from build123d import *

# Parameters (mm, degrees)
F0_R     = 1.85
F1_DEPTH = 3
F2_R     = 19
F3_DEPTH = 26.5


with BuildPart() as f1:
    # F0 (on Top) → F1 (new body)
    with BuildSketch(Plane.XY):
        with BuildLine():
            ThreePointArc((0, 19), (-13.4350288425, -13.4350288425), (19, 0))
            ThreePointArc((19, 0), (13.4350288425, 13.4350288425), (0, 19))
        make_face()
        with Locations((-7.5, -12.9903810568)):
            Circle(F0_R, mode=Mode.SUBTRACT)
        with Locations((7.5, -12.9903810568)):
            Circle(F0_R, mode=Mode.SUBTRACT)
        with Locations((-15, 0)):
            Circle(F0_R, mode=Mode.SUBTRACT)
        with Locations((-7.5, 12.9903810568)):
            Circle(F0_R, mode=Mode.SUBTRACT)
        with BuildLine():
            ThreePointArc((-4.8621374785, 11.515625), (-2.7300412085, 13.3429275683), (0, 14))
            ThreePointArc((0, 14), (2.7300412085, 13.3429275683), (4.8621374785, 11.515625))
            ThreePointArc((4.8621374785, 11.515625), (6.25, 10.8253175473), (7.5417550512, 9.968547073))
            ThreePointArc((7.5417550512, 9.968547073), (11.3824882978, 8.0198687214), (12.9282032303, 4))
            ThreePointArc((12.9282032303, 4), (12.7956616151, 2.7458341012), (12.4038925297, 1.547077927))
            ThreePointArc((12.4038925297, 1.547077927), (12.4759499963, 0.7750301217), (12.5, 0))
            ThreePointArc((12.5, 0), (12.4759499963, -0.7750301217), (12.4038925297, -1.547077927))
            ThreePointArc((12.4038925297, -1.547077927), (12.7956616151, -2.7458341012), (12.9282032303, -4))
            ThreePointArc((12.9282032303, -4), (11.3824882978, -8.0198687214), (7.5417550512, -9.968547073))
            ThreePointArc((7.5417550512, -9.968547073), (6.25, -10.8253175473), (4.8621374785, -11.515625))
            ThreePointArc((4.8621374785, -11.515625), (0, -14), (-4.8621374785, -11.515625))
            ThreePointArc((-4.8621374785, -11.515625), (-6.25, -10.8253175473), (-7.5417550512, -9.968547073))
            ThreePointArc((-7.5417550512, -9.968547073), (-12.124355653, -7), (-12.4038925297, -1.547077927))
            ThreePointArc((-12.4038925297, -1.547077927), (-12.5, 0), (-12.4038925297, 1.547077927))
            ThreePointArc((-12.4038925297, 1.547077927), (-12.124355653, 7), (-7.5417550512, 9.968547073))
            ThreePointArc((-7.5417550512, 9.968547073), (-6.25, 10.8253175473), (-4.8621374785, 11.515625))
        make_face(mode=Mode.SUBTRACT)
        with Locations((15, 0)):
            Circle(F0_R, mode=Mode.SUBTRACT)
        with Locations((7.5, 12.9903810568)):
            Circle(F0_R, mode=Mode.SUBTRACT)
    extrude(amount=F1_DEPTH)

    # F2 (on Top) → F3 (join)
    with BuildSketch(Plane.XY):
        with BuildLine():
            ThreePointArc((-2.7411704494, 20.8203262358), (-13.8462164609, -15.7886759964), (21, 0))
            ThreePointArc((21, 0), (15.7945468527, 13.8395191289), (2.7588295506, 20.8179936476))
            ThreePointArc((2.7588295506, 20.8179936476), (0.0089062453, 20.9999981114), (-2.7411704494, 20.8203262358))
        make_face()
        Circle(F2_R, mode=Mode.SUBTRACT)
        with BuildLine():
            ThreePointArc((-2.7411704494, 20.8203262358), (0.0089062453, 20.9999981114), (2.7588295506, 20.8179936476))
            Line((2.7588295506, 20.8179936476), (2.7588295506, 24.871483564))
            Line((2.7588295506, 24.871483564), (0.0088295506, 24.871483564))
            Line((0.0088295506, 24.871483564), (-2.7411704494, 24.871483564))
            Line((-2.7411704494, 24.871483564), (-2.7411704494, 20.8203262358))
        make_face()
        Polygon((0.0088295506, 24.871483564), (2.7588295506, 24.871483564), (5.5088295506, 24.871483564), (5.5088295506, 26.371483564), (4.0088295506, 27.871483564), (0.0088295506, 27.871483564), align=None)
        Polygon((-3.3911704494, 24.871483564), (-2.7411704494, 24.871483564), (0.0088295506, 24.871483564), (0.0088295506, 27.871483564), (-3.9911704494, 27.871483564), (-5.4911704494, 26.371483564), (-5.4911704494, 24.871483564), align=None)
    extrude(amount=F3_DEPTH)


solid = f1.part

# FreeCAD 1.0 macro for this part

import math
import FreeCAD as App
import Part
import Sketcher
Q = App.Units.Quantity

doc = App.newDocument("Part")
body = doc.addObject("PartDesign::Body", "Body")

# Sketch on XY plane
sketch1 = body.newObject("Sketcher::SketchObject", "Sketch")
sketch1.AttachmentSupport = (doc.getObject("XY_Plane"), [""])
sketch1.MapMode = "FlatFace"
sketch1.addGeometry([
    Part.ArcOfCircle(Part.Circle(App.Vector(0, 0, 0), App.Vector(0, 0, 1), 19), math.radians(90), math.radians(360)),  # 0
    Part.ArcOfCircle(Part.Circle(App.Vector(0, 0, 0), App.Vector(0, 0, 1), 19), math.radians(0), math.radians(90)),  # 1
    Part.Circle(App.Vector(-7.5, -13, 0), App.Vector(0, 0, 1), 1.9),  # 2
    Part.Circle(App.Vector(7.5, -13, 0), App.Vector(0, 0, 1), 1.9),  # 3
    Part.Circle(App.Vector(-15, 0, 0), App.Vector(0, 0, 1), 1.9),  # 4
    Part.Circle(App.Vector(-7.5, 13, 0), App.Vector(0, 0, 1), 1.9),  # 5
    Part.ArcOfCircle(Part.Circle(App.Vector(0, 0, 0), App.Vector(0, 0, 1), 12.5), math.radians(112.89), math.radians(127.11)),  # 6
    Part.ArcOfCircle(Part.Circle(App.Vector(0, 8, 0), App.Vector(0, 0, 1), 6), math.radians(90), math.radians(144)),  # 7
    Part.ArcOfCircle(Part.Circle(App.Vector(0, 8, 0), App.Vector(0, 0, 1), 6), math.radians(36), math.radians(90)),  # 8
    Part.ArcOfCircle(Part.Circle(App.Vector(0, 0, 0), App.Vector(0, 0, 1), 12.5), math.radians(52.89), math.radians(67.11)),  # 9
    Part.ArcOfCircle(Part.Circle(App.Vector(6.9, 4, 0), App.Vector(0, 0, 1), 6), math.radians(0), math.radians(84)),  # 10
    Part.ArcOfCircle(Part.Circle(App.Vector(6.9, 4, 0), App.Vector(0, 0, 1), 6), math.radians(-24), math.radians(0)),  # 11
    Part.ArcOfCircle(Part.Circle(App.Vector(0, 0, 0), App.Vector(0, 0, 1), 12.5), math.radians(0), math.radians(7.11)),  # 12
    Part.ArcOfCircle(Part.Circle(App.Vector(0, 0, 0), App.Vector(0, 0, 1), 12.5), math.radians(-7.11), math.radians(0)),  # 13
    Part.ArcOfCircle(Part.Circle(App.Vector(6.9, -4, 0), App.Vector(0, 0, 1), 6), math.radians(0), math.radians(24)),  # 14
    Part.ArcOfCircle(Part.Circle(App.Vector(6.9, -4, 0), App.Vector(0, 0, 1), 6), math.radians(-84), math.radians(0)),  # 15
    Part.ArcOfCircle(Part.Circle(App.Vector(0, 0, 0), App.Vector(0, 0, 1), 12.5), math.radians(-67.11), math.radians(-52.89)),  # 16
    Part.ArcOfCircle(Part.Circle(App.Vector(0, -8, 0), App.Vector(0, 0, 1), 6), math.radians(-144), math.radians(-36)),  # 17
    Part.ArcOfCircle(Part.Circle(App.Vector(0, 0, 0), App.Vector(0, 0, 1), 12.5), math.radians(-127.11), math.radians(-112.89)),  # 18
    Part.ArcOfCircle(Part.Circle(App.Vector(-6.9, -4, 0), App.Vector(0, 0, 1), 6), math.radians(156), math.radians(264)),  # 19
    Part.ArcOfCircle(Part.Circle(App.Vector(0, 0, 0), App.Vector(0, 0, 1), 12.5), math.radians(172.89), math.radians(187.11)),  # 20
    Part.ArcOfCircle(Part.Circle(App.Vector(-6.9, 4, 0), App.Vector(0, 0, 1), 6), math.radians(96), math.radians(204)),  # 21
    Part.Circle(App.Vector(15, 0, 0), App.Vector(0, 0, 1), 1.9),  # 22
    Part.Circle(App.Vector(7.5, 13, 0), App.Vector(0, 0, 1), 1.9),  # 23
], False)
sketch1.addConstraint([
    Sketcher.Constraint("Tangent", 0, 1, 1, 2),
    Sketcher.Constraint("Coincident", 1, 1, 0, 2),
    Sketcher.Constraint("Coincident", 6, 1, 7, 2),
    Sketcher.Constraint("Tangent", 7, 1, 8, 2),
    Sketcher.Constraint("Coincident", 8, 1, 9, 2),
    Sketcher.Constraint("Coincident", 9, 1, 10, 2),
    Sketcher.Constraint("Tangent", 10, 1, 11, 2),
    Sketcher.Constraint("Coincident", 11, 1, 12, 2),
    Sketcher.Constraint("Tangent", 12, 1, 13, 2),
    Sketcher.Constraint("Coincident", 13, 1, 14, 2),
    Sketcher.Constraint("Tangent", 14, 1, 15, 2),
    Sketcher.Constraint("Coincident", 15, 1, 16, 2),
    Sketcher.Constraint("Coincident", 16, 1, 17, 2),
    Sketcher.Constraint("Coincident", 17, 1, 18, 2),
    Sketcher.Constraint("Coincident", 18, 1, 19, 2),
    Sketcher.Constraint("Coincident", 19, 1, 20, 2),
    Sketcher.Constraint("Coincident", 20, 1, 21, 2),
    Sketcher.Constraint("Coincident", 21, 1, 6, 2),
    Sketcher.Constraint("Coincident", 0, 3, -1, 1),
    Sketcher.Constraint("Coincident", 6, 3, -1, 1),
    Sketcher.Constraint("Coincident", 9, 3, -1, 1),
    Sketcher.Constraint("Coincident", 12, 3, -1, 1),
    Sketcher.Constraint("Coincident", 16, 3, -1, 1),
    Sketcher.Constraint("Coincident", 18, 3, -1, 1),
    Sketcher.Constraint("Coincident", 20, 3, -1, 1),
    Sketcher.Constraint("Equal", 2, 3),
    Sketcher.Constraint("Equal", 3, 4),
    Sketcher.Constraint("Equal", 4, 5),
    Sketcher.Constraint("Equal", 7, 8),
    Sketcher.Constraint("Equal", 6, 9),
    Sketcher.Constraint("Equal", 8, 10),
    Sketcher.Constraint("Equal", 10, 11),
    Sketcher.Constraint("Equal", 9, 12),
    Sketcher.Constraint("Equal", 12, 13),
    Sketcher.Constraint("Equal", 11, 14),
    Sketcher.Constraint("Equal", 14, 15),
    Sketcher.Constraint("Equal", 13, 16),
    Sketcher.Constraint("Equal", 15, 17),
    Sketcher.Constraint("Equal", 16, 18),
    Sketcher.Constraint("Equal", 17, 19),
    Sketcher.Constraint("Equal", 18, 20),
    Sketcher.Constraint("Equal", 19, 21),
    Sketcher.Constraint("Equal", 5, 22),
    Sketcher.Constraint("Equal", 22, 23),
    Sketcher.Constraint("Symmetric", 3, 3, 5, 3, -1, 1),
    Sketcher.Constraint("Symmetric", 7, 3, 17, 3, -1, 1),
    Sketcher.Constraint("Symmetric", 10, 3, 19, 3, -1, 1),
    Sketcher.Constraint("Symmetric", 14, 3, 21, 3, -1, 1),
    Sketcher.Constraint("Symmetric", 4, 3, 22, 3, -1, 1),
    Sketcher.Constraint("Symmetric", 2, 3, 23, 3, -1, 1),
    Sketcher.Constraint("Symmetric", 2, 3, 3, 3, -2),
    Sketcher.Constraint("Symmetric", 14, 3, 19, 3, -2),
    Sketcher.Constraint("PointOnObject", 4, 3, -1),
    Sketcher.Constraint("PointOnObject", 7, 3, -2),
    Sketcher.Constraint("PointOnObject", 0, 1, -2),
    Sketcher.Constraint("PointOnObject", 1, 1, -1),
    Sketcher.Constraint("PointOnObject", 7, 1, -2),
    Sketcher.Constraint("PointOnObject", 12, 1, -1),
    Sketcher.Constraint("Horizontal", 21, 3, 10, 1),
    Sketcher.Constraint("Horizontal", 19, 3, 14, 1),
    Sketcher.Constraint("Radius", 0, Q("19 mm")),
    Sketcher.Constraint("Radius", 7, Q("6 mm")),
    Sketcher.Constraint("Diameter", 2, Q("3.7 mm")),
    Sketcher.Constraint("Radius", 6, Q("12.5 mm")),
    Sketcher.Constraint("DistanceX", 4, 3, -1, 1, Q("15 mm")),
    Sketcher.Constraint("DistanceY", -1, 1, 7, 3, Q("8 mm")),
    Sketcher.Constraint("DistanceY", -1, 1, 10, 3, Q("4 mm")),
    Sketcher.Constraint("DistanceX", 2, 3, 3, 3, Q("15 mm")),
    Sketcher.Constraint("DistanceY", 2, 3, -1, 1, Q("12.990381 mm")),
    Sketcher.Constraint("DistanceX", 11, 3, 9, 1, Q("0.613552 mm")),
])
pad1 = body.newObject("PartDesign::Pad", "Pad")
pad1.Profile = sketch1
pad1.Length = 3

# Sketch on XY plane
sketch2 = body.newObject("Sketcher::SketchObject", "Sketch001")
sketch2.AttachmentSupport = (doc.getObject("XY_Plane"), [""])
sketch2.MapMode = "FlatFace"
sketch2.addGeometry([
    Part.ArcOfCircle(Part.Circle(App.Vector(0, 0, 0), App.Vector(0, 0, 1), 21), math.radians(98), math.radians(360)),  # 0
    Part.ArcOfCircle(Part.Circle(App.Vector(0, 0, 0), App.Vector(0, 0, 1), 21), math.radians(0), math.radians(82)),  # 1
    Part.LineSegment(App.Vector(2.8, 20.8, 0), App.Vector(2.8, 24.9, 0)),  # 2
    Part.LineSegment(App.Vector(2.8, 24.9, 0), App.Vector(5.5, 24.9, 0)),  # 3
    Part.LineSegment(App.Vector(5.5, 24.9, 0), App.Vector(5.5, 26.4, 0)),  # 4
    Part.LineSegment(App.Vector(5.5, 26.4, 0), App.Vector(4, 27.9, 0)),  # 5
    Part.LineSegment(App.Vector(4, 27.9, 0), App.Vector(-4, 27.9, 0)),  # 6
    Part.LineSegment(App.Vector(-4, 27.9, 0), App.Vector(-5.5, 26.4, 0)),  # 7
    Part.LineSegment(App.Vector(-5.5, 26.4, 0), App.Vector(-5.5, 24.9, 0)),  # 8
    Part.LineSegment(App.Vector(-5.5, 24.9, 0), App.Vector(-2.7, 24.9, 0)),  # 9
    Part.LineSegment(App.Vector(-2.7, 24.9, 0), App.Vector(-2.7, 20.8, 0)),  # 10
    Part.Circle(App.Vector(0, 0, 0), App.Vector(0, 0, 1), 19),  # 11
], False)
sketch2.addConstraint([
    Sketcher.Constraint("Tangent", 0, 2, 1, 1),
    Sketcher.Constraint("Coincident", 1, 2, 2, 1),
    Sketcher.Constraint("Coincident", 2, 2, 3, 1),
    Sketcher.Constraint("Coincident", 3, 2, 4, 1),
    Sketcher.Constraint("Coincident", 4, 2, 5, 1),
    Sketcher.Constraint("Coincident", 5, 2, 6, 1),
    Sketcher.Constraint("Coincident", 6, 2, 7, 1),
    Sketcher.Constraint("Coincident", 7, 2, 8, 1),
    Sketcher.Constraint("Coincident", 8, 2, 9, 1),
    Sketcher.Constraint("Coincident", 9, 2, 10, 1),
    Sketcher.Constraint("Coincident", 10, 2, 0, 1),
    Sketcher.Constraint("Vertical", 2),
    Sketcher.Constraint("Horizontal", 3),
    Sketcher.Constraint("Vertical", 4),
    Sketcher.Constraint("Horizontal", 6),
    Sketcher.Constraint("Vertical", 8),
    Sketcher.Constraint("Horizontal", 9),
    Sketcher.Constraint("Vertical", 10),
    Sketcher.Constraint("Coincident", 0, 3, -1, 1),
    Sketcher.Constraint("Coincident", 11, 3, -1, 1),
    Sketcher.Constraint("Equal", 0, 1),
    Sketcher.Constraint("PointOnObject", 0, 2, -1),
    Sketcher.Constraint("Perpendicular", 5, 7),
    Sketcher.Constraint("Horizontal", 4, 2, 7, 2),
    Sketcher.Constraint("Horizontal", 3, 2, 8, 2),
    Sketcher.Constraint("Equal", 3, 9),
    Sketcher.Constraint("Equal", 5, 7),
    Sketcher.Constraint("Diameter", 11, Q("38 mm")),
    Sketcher.Constraint("Radius", 0, Q("21 mm")),
    Sketcher.Constraint("DistanceX", 6, 2, 6, 1, Q("8 mm")),
    Sketcher.Constraint("DistanceY", 4, 1, 4, 2, Q("1.5 mm")),
    Sketcher.Constraint("DistanceY", 2, 2, 5, 2, Q("3 mm")),
    Sketcher.Constraint("DistanceX", 3, 1, 3, 2, Q("2.75 mm")),
    Sketcher.Constraint("DistanceY", 2, 1, 2, 2, Q("4.05349 mm")),
    Sketcher.Constraint("DistanceY", 10, 2, 10, 1, Q("4.051157 mm")),
])
pad2 = body.newObject("PartDesign::Pad", "Pad001")
pad2.Profile = sketch2
pad2.Length = 26.5

doc.recompute()
